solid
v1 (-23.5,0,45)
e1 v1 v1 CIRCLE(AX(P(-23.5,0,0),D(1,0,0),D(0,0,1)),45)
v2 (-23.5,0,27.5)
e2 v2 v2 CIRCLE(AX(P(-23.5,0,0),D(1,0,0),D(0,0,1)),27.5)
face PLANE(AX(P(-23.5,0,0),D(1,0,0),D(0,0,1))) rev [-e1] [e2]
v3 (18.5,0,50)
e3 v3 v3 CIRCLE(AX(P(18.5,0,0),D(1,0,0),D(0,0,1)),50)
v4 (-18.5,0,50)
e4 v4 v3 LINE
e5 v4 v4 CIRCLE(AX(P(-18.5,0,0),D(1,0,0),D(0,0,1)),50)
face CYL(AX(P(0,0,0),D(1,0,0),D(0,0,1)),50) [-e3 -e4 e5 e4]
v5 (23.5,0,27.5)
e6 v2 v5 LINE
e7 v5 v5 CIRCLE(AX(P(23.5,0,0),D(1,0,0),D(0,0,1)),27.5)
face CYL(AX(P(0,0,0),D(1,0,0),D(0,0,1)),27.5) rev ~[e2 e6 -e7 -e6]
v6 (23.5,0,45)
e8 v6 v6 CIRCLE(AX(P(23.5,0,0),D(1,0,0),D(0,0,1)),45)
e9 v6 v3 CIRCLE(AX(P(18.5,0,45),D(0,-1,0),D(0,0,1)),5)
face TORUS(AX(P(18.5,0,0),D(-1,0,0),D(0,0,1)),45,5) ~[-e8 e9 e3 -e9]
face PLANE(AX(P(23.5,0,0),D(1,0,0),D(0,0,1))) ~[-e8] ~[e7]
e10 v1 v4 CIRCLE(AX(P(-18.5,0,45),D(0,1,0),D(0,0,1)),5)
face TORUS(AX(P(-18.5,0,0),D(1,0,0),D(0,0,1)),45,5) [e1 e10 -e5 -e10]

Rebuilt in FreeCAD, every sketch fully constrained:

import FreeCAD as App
import Part
import Sketcher
from FreeCAD import Vector
Q = App.Units.Quantity


def edges_at(feature, points):
    """Names of the edges that pass closest to the given points."""
    edges = feature.Shape.Edges
    near = lambda p: min(range(len(edges)), key=lambda i: edges[i].distToShape(Part.Vertex(*p))[0])
    return sorted({f"Edge{near(p) + 1}" for p in points})


def add_polygon(sketch, points):
    """Adds a closed chain of lines whose ends are joined by coincident constraints."""
    first, n = sketch.GeometryCount, len(points)
    for a, b in zip(points, points[1:] + points[:1]):
        sketch.addGeometry(Part.LineSegment(App.Vector(*a, 0), App.Vector(*b, 0)), False)
    for i in range(n):
        sketch.addConstraint(Sketcher.Constraint("Coincident", first + i, 2, first + (i + 1) % n, 1))

doc = App.newDocument("Part")
body = doc.addObject("PartDesign::Body", "Body")

sketch1 = body.newObject("Sketcher::SketchObject", "Sketch")
sketch1.AttachmentSupport = (doc.getObject("XZ_Plane"), [""])
sketch1.MapMode = "FlatFace"
add_polygon(sketch1, [(-23.5, 50), (-23.5, 27.5), (23.5, 27.5), (23.5, 50)])
sketch1.addConstraint(Sketcher.Constraint("Vertical", 0))
sketch1.addConstraint(Sketcher.Constraint("Horizontal", 1))
sketch1.addConstraint(Sketcher.Constraint("Vertical", 2))
sketch1.addConstraint(Sketcher.Constraint("Horizontal", 3))
sketch1.addConstraint(Sketcher.Constraint("DistanceX", 1, 1, 1, 2, Q("47 mm")))
sketch1.addConstraint(Sketcher.Constraint("DistanceY", 0, 2, 0, 1, Q("22.5 mm")))
sketch1.addConstraint(Sketcher.Constraint("DistanceY", -1, 1, 2, 2, Q("50 mm")))
sketch1.addConstraint(Sketcher.Constraint("DistanceX", 0, 2, -1, 1, Q("23.5 mm")))
revolution = body.newObject("PartDesign::Revolution", "Revolution")
revolution.Profile = sketch1
revolution.ReferenceAxis = (sketch1, ["H_Axis"])
revolution.Angle = 360
doc.recompute()

fillet = body.newObject("PartDesign::Fillet", "Fillet")
fillet.Base = (revolution, edges_at(revolution, [(23.5, 0, -50), (-23.5, 0, -50)]))
fillet.Radius = 5

doc.recompute()
